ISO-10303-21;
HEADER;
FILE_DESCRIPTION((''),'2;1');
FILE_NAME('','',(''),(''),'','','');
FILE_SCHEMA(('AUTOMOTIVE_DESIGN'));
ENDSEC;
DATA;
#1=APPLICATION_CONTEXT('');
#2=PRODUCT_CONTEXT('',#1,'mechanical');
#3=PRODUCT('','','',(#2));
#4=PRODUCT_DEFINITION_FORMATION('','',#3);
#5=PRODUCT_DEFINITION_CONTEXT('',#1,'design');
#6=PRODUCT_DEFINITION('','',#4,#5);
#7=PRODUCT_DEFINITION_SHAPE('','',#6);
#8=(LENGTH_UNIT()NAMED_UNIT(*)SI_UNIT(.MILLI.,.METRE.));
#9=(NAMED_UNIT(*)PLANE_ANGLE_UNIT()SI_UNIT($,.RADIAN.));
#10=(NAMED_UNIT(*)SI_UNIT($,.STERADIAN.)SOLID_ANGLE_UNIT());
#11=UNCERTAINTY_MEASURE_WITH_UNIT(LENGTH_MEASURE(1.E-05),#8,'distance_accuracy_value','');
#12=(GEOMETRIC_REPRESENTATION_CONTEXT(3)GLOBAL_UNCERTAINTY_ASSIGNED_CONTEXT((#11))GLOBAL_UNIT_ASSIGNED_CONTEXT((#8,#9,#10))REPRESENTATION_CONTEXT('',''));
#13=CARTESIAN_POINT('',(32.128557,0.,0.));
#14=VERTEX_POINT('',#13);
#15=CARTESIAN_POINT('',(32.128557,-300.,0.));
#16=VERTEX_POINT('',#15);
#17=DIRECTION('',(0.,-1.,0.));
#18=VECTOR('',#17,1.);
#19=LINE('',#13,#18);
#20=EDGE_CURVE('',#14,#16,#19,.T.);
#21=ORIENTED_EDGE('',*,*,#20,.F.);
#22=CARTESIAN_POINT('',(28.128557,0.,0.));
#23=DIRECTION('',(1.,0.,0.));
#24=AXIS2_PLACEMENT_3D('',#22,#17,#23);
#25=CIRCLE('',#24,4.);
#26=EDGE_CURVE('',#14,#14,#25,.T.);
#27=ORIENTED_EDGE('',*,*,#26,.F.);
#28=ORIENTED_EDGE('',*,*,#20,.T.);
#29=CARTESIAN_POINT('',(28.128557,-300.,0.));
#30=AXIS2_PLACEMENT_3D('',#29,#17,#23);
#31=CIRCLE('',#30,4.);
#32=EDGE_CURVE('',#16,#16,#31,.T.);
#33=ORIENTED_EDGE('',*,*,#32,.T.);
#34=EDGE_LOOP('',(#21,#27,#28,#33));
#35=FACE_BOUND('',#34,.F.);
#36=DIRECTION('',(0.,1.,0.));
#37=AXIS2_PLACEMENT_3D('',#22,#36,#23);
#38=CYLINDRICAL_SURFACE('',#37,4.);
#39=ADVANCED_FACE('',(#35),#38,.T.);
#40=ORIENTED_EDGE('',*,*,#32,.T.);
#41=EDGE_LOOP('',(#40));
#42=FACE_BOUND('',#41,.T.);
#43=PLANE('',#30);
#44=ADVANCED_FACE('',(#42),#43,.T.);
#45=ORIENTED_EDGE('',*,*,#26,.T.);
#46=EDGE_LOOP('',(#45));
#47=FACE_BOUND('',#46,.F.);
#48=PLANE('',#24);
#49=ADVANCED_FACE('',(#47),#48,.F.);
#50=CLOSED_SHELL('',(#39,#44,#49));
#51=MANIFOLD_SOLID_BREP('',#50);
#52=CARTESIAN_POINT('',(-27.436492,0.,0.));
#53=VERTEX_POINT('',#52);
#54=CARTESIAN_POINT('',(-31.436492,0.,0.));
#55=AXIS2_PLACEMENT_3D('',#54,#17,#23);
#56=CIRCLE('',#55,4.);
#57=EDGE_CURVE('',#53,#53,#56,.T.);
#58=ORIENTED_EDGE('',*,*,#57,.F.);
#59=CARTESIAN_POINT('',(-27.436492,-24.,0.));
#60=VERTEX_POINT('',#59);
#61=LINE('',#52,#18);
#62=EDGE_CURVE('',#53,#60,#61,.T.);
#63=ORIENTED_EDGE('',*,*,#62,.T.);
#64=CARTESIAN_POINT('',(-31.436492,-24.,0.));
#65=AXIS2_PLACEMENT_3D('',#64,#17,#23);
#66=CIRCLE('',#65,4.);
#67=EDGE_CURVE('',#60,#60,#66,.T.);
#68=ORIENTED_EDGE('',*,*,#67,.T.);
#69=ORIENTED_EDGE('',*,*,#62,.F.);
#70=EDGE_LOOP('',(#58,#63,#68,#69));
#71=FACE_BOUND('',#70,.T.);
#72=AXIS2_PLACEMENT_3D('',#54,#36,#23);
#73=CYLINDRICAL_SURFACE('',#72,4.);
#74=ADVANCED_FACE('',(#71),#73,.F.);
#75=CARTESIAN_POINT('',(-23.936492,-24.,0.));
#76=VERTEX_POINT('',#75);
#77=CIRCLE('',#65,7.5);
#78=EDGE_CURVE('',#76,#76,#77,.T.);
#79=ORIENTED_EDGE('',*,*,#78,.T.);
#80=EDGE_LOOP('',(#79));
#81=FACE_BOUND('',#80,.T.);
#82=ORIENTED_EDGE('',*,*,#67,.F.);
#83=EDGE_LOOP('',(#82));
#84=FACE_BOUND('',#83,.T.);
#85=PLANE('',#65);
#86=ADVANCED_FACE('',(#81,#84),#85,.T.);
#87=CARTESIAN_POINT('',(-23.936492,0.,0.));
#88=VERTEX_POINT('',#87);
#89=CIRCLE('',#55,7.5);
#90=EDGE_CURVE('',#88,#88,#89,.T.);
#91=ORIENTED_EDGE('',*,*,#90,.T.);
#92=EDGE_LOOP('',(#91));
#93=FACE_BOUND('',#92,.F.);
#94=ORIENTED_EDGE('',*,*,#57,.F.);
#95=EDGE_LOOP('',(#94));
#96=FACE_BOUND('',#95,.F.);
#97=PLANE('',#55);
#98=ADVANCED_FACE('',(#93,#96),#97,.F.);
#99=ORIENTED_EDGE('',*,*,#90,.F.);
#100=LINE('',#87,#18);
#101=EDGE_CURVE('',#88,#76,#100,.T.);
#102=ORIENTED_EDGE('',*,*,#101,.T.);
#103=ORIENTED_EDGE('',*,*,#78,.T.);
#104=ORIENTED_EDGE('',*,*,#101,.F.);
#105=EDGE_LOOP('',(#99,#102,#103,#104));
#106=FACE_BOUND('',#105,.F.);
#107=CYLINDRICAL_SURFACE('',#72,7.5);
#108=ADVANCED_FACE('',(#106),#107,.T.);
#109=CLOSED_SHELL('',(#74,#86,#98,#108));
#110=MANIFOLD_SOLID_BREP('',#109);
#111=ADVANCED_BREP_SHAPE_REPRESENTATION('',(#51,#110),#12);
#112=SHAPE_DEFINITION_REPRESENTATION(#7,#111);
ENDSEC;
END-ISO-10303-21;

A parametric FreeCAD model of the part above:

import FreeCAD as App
import Part
import Sketcher

V = App.Vector
Q = App.Units.Quantity

doc = App.newDocument("Part")
body = doc.addObject("PartDesign::Body", "Body")

# Sketch on XZ plane
sketch1 = body.newObject("Sketcher::SketchObject", "Sketch")
sketch1.AttachmentSupport = (doc.getObject("XZ_Plane"), [""])
sketch1.MapMode = "FlatFace"
sketch1.addGeometry([
    Part.Circle(V(-31.436492, 0, 0), V(0, 0, 1), 7.5),
    Part.Circle(V(-31.436492, 0, 0), V(0, 0, 1), 4),
], False)
sketch1.addConstraint([
    Sketcher.Constraint("Coincident", 1, 3, 0, 3),
    Sketcher.Constraint("PointOnObject", 0, 3, -1),
    Sketcher.Constraint("Diameter", 0, Q("15 mm")),
    Sketcher.Constraint("Diameter", 1, Q("8 mm")),
    Sketcher.Constraint("DistanceX", 0, 3, -1, 1, Q("31.436492 mm")),
])
pad1 = body.newObject("PartDesign::Pad", "Pad")
pad1.Profile = sketch1
pad1.Length = 24
body2 = doc.addObject("PartDesign::Body", "Body001")

# Sketch on XZ plane
sketch2 = body2.newObject("Sketcher::SketchObject", "Sketch001")
sketch2.AttachmentSupport = (doc.getObject("XZ_Plane001"), [""])
sketch2.MapMode = "FlatFace"
sketch2.addGeometry(Part.Circle(V(28.128557, 0, 0), V(0, 0, 1), 4), False)
sketch2.addConstraint([
    Sketcher.Constraint("PointOnObject", 0, 3, -1),
    Sketcher.Constraint("Diameter", 0, Q("8 mm")),
    Sketcher.Constraint("DistanceX", -1, 1, 0, 3, Q("28.128557 mm")),
])
pad2 = body2.newObject("PartDesign::Pad", "Pad001")
pad2.Profile = sketch2
pad2.Length = 300

doc.recompute()
